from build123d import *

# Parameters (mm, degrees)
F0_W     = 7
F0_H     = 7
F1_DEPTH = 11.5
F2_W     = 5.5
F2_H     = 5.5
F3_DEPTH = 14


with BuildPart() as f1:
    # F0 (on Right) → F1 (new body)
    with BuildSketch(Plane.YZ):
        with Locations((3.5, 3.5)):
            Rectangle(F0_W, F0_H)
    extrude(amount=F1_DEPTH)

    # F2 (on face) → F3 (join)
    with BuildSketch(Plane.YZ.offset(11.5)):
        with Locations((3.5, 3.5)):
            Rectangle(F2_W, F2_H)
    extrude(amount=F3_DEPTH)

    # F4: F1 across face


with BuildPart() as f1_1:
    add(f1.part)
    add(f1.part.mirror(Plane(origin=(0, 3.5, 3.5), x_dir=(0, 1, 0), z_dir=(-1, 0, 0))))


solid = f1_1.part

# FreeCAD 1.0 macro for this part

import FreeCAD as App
import Part
import Sketcher

V = App.Vector

doc = App.newDocument("Part")
body = doc.addObject("PartDesign::Body", "Body")

# Sketch on YZ plane
sketch1 = doc.addObject("Sketcher::SketchObject", "Sketch")
body.addObject(sketch1)
sketch1.AttachmentSupport = (doc.YZ_Plane, [""])
sketch1.MapMode = "FlatFace"
sketch1.addGeometry(Part.LineSegment(V(0, 7, 0), V(0, 0, 0)), False)
sketch1.addGeometry(Part.LineSegment(V(0, 0, 0), V(7, 0, 0)), False)
sketch1.addGeometry(Part.LineSegment(V(7, 0, 0), V(7, 7, 0)), False)
sketch1.addGeometry(Part.LineSegment(V(7, 7, 0), V(0, 7, 0)), False)
sketch1.addConstraint(Sketcher.Constraint("Coincident", 0, 2, 1, 1))
sketch1.addConstraint(Sketcher.Constraint("Coincident", 1, 2, 2, 1))
sketch1.addConstraint(Sketcher.Constraint("Coincident", 2, 2, 3, 1))
sketch1.addConstraint(Sketcher.Constraint("Coincident", 3, 2, 0, 1))
sketch1.addConstraint(Sketcher.Constraint("Vertical", 0))
sketch1.addConstraint(Sketcher.Constraint("Horizontal", 1))
sketch1.addConstraint(Sketcher.Constraint("Vertical", 2))
sketch1.addConstraint(Sketcher.Constraint("Horizontal", 3))
sketch1.addConstraint(Sketcher.Constraint("Coincident", 0, 2, -1, 1))
sketch1.addConstraint(Sketcher.Constraint("Equal", 3, 0))
sketch1.addConstraint(Sketcher.Constraint("DistanceX", 1, 1, 1, 2, 7.0))
pad1 = doc.addObject("PartDesign::Pad", "Pad")
body.addObject(pad1)
pad1.Profile = sketch1
pad1.Length = 11.5

# Sketch on YZ plane
sketch2 = doc.addObject("Sketcher::SketchObject", "Sketch001")
body.addObject(sketch2)
sketch2.AttachmentSupport = (doc.YZ_Plane, [""])
sketch2.MapMode = "FlatFace"
sketch2.AttachmentOffset = App.Placement(V(0, 0, 11.5), App.Rotation())
sketch2.addGeometry(Part.LineSegment(V(1, 6, 0), V(1, 1, 0)), False)
sketch2.addGeometry(Part.LineSegment(V(1, 1, 0), V(6, 1, 0)), False)
sketch2.addGeometry(Part.LineSegment(V(6, 1, 0), V(6, 6, 0)), False)
sketch2.addGeometry(Part.LineSegment(V(6, 6, 0), V(1, 6, 0)), False)
sketch2.addConstraint(Sketcher.Constraint("Coincident", 0, 2, 1, 1))
sketch2.addConstraint(Sketcher.Constraint("Coincident", 1, 2, 2, 1))
sketch2.addConstraint(Sketcher.Constraint("Coincident", 2, 2, 3, 1))
sketch2.addConstraint(Sketcher.Constraint("Coincident", 3, 2, 0, 1))
sketch2.addConstraint(Sketcher.Constraint("Vertical", 0))
sketch2.addConstraint(Sketcher.Constraint("Horizontal", 1))
sketch2.addConstraint(Sketcher.Constraint("Vertical", 2))
sketch2.addConstraint(Sketcher.Constraint("Horizontal", 3))
sketch2.addConstraint(Sketcher.Constraint("Equal", 3, 0))
sketch2.addConstraint(Sketcher.Constraint("DistanceX", 1, 1, 1, 2, 5.5))
sketch2.addConstraint(Sketcher.Constraint("DistanceX", -1, 1, 0, 2, 0.75))
sketch2.addConstraint(Sketcher.Constraint("DistanceY", -1, 1, 0, 2, 0.75))
pad2 = doc.addObject("PartDesign::Pad", "Pad001")
body.addObject(pad2)
pad2.Profile = sketch2
pad2.Length = 14
body2 = doc.addObject("PartDesign::Body", "Body001")
doc.recompute()

body2.BaseFeature = body
doc.recompute()

mirroring = doc.addObject("Part::Mirroring", "Mirroring")
mirroring.Source = body
mirroring.Base = V(0, 3.5, 3.5)
mirroring.Normal = V(-1, 0, 0)
body3 = doc.addObject("PartDesign::Body", "Body002")
body3.BaseFeature = mirroring
boolean = doc.addObject("PartDesign::Boolean", "Boolean")
body2.addObject(boolean)
boolean.Type = "Fuse"
boolean.addObjects([body3])
doc.recompute()
mirroring.Visibility = False

doc.recompute()
